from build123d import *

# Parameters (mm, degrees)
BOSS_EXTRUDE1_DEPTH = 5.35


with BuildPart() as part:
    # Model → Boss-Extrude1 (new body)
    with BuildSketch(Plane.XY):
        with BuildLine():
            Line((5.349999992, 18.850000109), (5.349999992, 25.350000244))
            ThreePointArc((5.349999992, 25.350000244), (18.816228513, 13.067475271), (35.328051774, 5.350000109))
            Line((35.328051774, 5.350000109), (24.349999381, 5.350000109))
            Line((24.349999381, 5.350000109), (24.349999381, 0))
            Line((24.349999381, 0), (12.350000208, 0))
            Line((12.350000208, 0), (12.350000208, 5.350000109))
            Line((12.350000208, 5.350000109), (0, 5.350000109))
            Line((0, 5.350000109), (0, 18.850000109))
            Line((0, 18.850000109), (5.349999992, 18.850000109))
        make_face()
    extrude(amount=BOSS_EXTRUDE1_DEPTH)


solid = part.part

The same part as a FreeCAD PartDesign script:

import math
import FreeCAD as App
import Part
import Sketcher

doc = App.newDocument("Part")
body = doc.addObject("PartDesign::Body", "Body")

# Sketch on XY plane
sketch1 = body.newObject("Sketcher::SketchObject", "Sketch")
sketch1.AttachmentSupport = (doc.getObject("XY_Plane"), [""])
sketch1.MapMode = "FlatFace"
sketch1.addGeometry(Part.LineSegment(App.Vector(5, 25, 0), App.Vector(5, 19, 0)), False)
sketch1.addGeometry(Part.LineSegment(App.Vector(5, 19, 0), App.Vector(0, 19, 0)), False)
sketch1.addGeometry(Part.LineSegment(App.Vector(0, 19, 0), App.Vector(0, 5, 0)), False)
sketch1.addGeometry(Part.LineSegment(App.Vector(0, 5, 0), App.Vector(12, 5, 0)), False)
sketch1.addGeometry(Part.LineSegment(App.Vector(12, 5, 0), App.Vector(12, 0, 0)), False)
sketch1.addGeometry(Part.LineSegment(App.Vector(12, 0, 0), App.Vector(24, 0, 0)), False)
sketch1.addGeometry(Part.LineSegment(App.Vector(24, 0, 0), App.Vector(24, 5, 0)), False)
sketch1.addGeometry(Part.LineSegment(App.Vector(24, 5, 0), App.Vector(35, 5, 0)), False)
sketch1.addGeometry(Part.ArcOfCircle(Part.Circle(App.Vector(52, 63, 0), App.Vector(0, 0, 1), 61), math.radians(-141), math.radians(-106)), False)
sketch1.addConstraint(Sketcher.Constraint("Coincident", 0, 2, 1, 1))
sketch1.addConstraint(Sketcher.Constraint("Coincident", 1, 2, 2, 1))
sketch1.addConstraint(Sketcher.Constraint("Coincident", 2, 2, 3, 1))
sketch1.addConstraint(Sketcher.Constraint("Coincident", 3, 2, 4, 1))
sketch1.addConstraint(Sketcher.Constraint("Coincident", 4, 2, 5, 1))
sketch1.addConstraint(Sketcher.Constraint("Coincident", 5, 2, 6, 1))
sketch1.addConstraint(Sketcher.Constraint("Coincident", 6, 2, 7, 1))
sketch1.addConstraint(Sketcher.Constraint("Coincident", 7, 2, 8, 2))
sketch1.addConstraint(Sketcher.Constraint("Coincident", 8, 1, 0, 1))
sketch1.addConstraint(Sketcher.Constraint("Vertical", 0))
sketch1.addConstraint(Sketcher.Constraint("Horizontal", 1))
sketch1.addConstraint(Sketcher.Constraint("Vertical", 2))
sketch1.addConstraint(Sketcher.Constraint("Horizontal", 3))
sketch1.addConstraint(Sketcher.Constraint("Vertical", 4))
sketch1.addConstraint(Sketcher.Constraint("Horizontal", 5))
sketch1.addConstraint(Sketcher.Constraint("Vertical", 6))
sketch1.addConstraint(Sketcher.Constraint("Horizontal", 7))
sketch1.addConstraint(Sketcher.Constraint("PointOnObject", 1, 2, -2))
sketch1.addConstraint(Sketcher.Constraint("PointOnObject", 4, 2, -1))
sketch1.addConstraint(Sketcher.Constraint("Horizontal", 3, 2, 6, 2))
sketch1.addConstraint(Sketcher.Constraint("Equal", 1, 4))
sketch1.addConstraint(Sketcher.Constraint("DistanceX", 5, 1, 5, 2, 11.999999))
sketch1.addConstraint(Sketcher.Constraint("DistanceY", 0, 2, 0, 1, 6.5))
sketch1.addConstraint(Sketcher.Constraint("DistanceY", 2, 2, 2, 1, 13.5))
sketch1.addConstraint(Sketcher.Constraint("DistanceX", 0, 2, 3, 2, 7.0))
sketch1.addConstraint(Sketcher.Constraint("DistanceX", 1, 2, 1, 1, 5.35))
sketch1.addConstraint(Sketcher.Constraint("Radius", 8, 60.534852))
sketch1.addConstraint(Sketcher.Constraint("DistanceX", 7, 1, 7, 2, 10.978052))
pad1 = body.newObject("PartDesign::Pad", "Pad")
pad1.Profile = sketch1
pad1.Length = 5.35

doc.recompute()
